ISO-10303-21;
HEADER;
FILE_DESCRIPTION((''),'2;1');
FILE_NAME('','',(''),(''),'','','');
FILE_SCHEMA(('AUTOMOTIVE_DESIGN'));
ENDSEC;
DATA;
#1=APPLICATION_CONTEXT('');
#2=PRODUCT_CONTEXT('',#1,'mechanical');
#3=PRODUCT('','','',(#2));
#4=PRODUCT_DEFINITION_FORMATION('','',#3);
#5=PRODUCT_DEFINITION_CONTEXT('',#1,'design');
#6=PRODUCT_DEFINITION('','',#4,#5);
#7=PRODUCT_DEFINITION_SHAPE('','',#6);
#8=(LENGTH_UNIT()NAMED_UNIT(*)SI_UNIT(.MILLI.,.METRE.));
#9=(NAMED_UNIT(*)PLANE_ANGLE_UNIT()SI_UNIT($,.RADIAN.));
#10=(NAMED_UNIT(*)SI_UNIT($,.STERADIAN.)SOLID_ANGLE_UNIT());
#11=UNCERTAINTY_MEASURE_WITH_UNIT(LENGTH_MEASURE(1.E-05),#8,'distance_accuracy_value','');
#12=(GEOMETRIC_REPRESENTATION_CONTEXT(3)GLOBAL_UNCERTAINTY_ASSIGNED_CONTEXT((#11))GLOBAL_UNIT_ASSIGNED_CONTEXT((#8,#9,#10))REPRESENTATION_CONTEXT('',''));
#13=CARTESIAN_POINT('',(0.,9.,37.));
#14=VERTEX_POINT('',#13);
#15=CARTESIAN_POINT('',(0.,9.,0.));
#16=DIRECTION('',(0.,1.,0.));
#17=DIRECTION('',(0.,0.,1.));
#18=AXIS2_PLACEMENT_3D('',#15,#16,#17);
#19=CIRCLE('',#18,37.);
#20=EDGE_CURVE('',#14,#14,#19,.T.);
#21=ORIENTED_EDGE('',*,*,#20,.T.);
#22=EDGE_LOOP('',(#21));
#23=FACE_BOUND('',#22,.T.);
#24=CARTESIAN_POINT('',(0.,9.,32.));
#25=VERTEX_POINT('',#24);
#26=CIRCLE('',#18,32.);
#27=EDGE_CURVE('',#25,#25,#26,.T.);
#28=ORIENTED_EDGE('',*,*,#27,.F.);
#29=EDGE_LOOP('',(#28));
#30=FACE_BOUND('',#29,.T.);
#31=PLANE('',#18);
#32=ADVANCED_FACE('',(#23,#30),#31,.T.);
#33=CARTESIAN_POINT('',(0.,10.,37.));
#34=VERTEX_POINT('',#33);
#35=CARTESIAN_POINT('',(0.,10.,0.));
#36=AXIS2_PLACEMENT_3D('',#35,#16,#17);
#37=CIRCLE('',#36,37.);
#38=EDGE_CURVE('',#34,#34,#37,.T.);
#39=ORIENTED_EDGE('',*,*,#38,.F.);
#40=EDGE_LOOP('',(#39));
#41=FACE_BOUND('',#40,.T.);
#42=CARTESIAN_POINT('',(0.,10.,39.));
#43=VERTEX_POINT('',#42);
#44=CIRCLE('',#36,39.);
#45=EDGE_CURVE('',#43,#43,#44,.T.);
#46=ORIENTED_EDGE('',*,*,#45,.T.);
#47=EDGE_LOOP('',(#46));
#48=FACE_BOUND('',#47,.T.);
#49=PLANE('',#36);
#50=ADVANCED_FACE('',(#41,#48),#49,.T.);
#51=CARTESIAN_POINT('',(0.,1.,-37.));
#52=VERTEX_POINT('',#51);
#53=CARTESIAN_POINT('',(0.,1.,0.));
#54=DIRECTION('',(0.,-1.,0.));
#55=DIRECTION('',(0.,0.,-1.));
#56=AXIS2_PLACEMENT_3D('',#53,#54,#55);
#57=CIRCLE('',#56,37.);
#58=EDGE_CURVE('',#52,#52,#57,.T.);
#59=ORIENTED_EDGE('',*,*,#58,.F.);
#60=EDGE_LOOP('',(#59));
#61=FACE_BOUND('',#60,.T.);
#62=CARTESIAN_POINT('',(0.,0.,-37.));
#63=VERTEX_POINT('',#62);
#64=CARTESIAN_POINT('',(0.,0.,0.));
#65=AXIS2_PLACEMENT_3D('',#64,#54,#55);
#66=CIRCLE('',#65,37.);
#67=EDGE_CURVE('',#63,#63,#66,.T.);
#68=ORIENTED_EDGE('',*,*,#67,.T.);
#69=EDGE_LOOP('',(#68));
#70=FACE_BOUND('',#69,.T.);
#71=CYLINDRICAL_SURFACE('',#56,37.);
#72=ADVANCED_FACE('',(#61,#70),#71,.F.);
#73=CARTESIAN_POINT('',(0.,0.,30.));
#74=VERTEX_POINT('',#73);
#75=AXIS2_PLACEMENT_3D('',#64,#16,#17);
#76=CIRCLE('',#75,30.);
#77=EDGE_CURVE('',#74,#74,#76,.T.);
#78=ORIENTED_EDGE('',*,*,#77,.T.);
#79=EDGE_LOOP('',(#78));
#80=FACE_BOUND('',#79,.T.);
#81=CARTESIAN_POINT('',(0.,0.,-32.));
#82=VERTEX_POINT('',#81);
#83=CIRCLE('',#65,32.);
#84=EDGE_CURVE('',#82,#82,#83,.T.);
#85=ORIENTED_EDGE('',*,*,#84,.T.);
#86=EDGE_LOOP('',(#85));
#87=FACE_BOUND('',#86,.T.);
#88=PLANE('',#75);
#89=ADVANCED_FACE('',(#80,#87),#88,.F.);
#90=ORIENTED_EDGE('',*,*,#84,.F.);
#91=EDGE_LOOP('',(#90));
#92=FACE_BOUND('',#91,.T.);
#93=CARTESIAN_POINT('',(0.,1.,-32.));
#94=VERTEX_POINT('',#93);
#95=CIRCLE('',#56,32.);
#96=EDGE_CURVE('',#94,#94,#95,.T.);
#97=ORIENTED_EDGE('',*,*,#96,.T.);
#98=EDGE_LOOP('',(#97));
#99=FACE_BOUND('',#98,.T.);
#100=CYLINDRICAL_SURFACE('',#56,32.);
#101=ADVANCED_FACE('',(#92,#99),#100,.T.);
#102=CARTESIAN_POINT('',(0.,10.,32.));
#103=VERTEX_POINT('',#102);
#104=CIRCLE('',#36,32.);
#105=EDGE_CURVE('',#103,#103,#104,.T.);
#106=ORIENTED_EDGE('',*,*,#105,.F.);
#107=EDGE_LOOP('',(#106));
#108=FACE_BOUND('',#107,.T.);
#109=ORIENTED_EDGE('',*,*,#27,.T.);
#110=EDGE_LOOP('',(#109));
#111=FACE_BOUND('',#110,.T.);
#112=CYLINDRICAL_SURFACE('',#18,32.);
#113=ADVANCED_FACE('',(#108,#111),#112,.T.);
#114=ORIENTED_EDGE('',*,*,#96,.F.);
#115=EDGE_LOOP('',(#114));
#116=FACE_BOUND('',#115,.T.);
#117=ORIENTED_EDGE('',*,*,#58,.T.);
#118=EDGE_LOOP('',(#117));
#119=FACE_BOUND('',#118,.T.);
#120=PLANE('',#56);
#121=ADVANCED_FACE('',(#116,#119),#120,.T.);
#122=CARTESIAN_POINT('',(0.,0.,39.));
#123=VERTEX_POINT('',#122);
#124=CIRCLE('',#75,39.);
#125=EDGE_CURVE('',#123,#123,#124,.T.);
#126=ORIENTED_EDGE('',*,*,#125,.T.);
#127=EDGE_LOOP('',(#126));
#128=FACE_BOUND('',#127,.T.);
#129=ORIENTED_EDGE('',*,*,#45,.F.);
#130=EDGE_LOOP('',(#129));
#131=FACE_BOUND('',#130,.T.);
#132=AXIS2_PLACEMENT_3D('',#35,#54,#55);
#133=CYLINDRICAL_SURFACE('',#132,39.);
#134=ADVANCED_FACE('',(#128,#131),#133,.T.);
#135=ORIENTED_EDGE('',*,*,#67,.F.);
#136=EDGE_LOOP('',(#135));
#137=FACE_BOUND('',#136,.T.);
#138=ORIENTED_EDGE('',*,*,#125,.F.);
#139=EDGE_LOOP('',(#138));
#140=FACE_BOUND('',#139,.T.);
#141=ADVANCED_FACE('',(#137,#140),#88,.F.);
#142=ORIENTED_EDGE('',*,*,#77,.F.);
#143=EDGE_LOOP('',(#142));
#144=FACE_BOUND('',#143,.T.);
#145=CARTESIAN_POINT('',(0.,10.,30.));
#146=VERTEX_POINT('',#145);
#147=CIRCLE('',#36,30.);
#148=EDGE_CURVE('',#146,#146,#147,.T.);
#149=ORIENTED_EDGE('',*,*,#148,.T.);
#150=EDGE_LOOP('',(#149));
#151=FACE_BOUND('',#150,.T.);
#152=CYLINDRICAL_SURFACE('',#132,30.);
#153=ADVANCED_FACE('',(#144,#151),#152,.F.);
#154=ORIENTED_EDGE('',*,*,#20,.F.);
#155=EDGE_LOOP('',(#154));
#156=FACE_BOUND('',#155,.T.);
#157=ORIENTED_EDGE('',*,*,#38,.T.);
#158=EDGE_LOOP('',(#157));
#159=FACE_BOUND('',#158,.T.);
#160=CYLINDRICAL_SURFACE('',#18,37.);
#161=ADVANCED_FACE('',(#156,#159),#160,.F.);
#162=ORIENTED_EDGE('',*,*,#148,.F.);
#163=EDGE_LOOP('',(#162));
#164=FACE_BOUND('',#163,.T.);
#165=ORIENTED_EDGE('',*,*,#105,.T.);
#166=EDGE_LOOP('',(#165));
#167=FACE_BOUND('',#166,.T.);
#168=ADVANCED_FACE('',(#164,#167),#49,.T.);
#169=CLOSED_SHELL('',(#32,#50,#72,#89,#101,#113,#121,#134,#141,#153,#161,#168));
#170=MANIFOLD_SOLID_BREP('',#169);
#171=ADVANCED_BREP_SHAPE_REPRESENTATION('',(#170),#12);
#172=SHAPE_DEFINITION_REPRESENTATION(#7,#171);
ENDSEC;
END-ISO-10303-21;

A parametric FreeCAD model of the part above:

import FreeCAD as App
import Part
import Sketcher
Q = App.Units.Quantity

doc = App.newDocument("Part")
body = doc.addObject("PartDesign::Body", "Body")

# Sketch on XZ plane
sketch1 = doc.addObject("Sketcher::SketchObject", "Sketch")
body.addObject(sketch1)
sketch1.AttachmentSupport = (doc.XZ_Plane, [""])
sketch1.MapMode = "FlatFace"
sketch1.addGeometry([
    Part.Circle(App.Vector(0, 0, 0), App.Vector(0, 0, 1), 39),
    Part.Circle(App.Vector(0, 0, 0), App.Vector(0, 0, 1), 30),
], False)
sketch1.addConstraint([
    Sketcher.Constraint("Coincident", 0, 3, -1, 1),
    Sketcher.Constraint("Coincident", 1, 3, -1, 1),
    Sketcher.Constraint("Diameter", 0, Q("78 mm")),
    Sketcher.Constraint("Diameter", 1, Q("60 mm")),
])
pad1 = doc.addObject("PartDesign::Pad", "Pad")
body.addObject(pad1)
pad1.Profile = sketch1
pad1.Length = 10
pad1.Reversed = True

# Sketch on XZ plane
sketch2 = doc.addObject("Sketcher::SketchObject", "Sketch001")
body.addObject(sketch2)
sketch2.AttachmentSupport = (doc.XZ_Plane, [""])
sketch2.MapMode = "FlatFace"
sketch2.AttachmentOffset = App.Placement(App.Vector(0, 0, -10), App.Rotation())
sketch2.addGeometry([
    Part.Circle(App.Vector(0, 0, 0), App.Vector(0, 0, 1), 37),
    Part.Circle(App.Vector(0, 0, 0), App.Vector(0, 0, 1), 32),
], False)
sketch2.addConstraint([
    Sketcher.Constraint("Coincident", 0, 3, -1, 1),
    Sketcher.Constraint("Coincident", 1, 3, -1, 1),
    Sketcher.Constraint("Diameter", 0, Q("74 mm")),
    Sketcher.Constraint("Diameter", 1, Q("64 mm")),
])
pocket1 = doc.addObject("PartDesign::Pocket", "Pocket")
body.addObject(pocket1)
pocket1.Profile = sketch2
pocket1.Length = 1
pocket1.Reversed = True

# Sketch on XZ plane
sketch3 = doc.addObject("Sketcher::SketchObject", "Sketch002")
body.addObject(sketch3)
sketch3.AttachmentSupport = (doc.XZ_Plane, [""])
sketch3.MapMode = "FlatFace"
sketch3.addGeometry([
    Part.Circle(App.Vector(0, 0, 0), App.Vector(0, 0, 1), 37),
    Part.Circle(App.Vector(0, 0, 0), App.Vector(0, 0, 1), 32),
], False)
sketch3.addConstraint([
    Sketcher.Constraint("Coincident", 0, 3, -1, 1),
    Sketcher.Constraint("Coincident", 1, 3, -1, 1),
    Sketcher.Constraint("Diameter", 0, Q("74 mm")),
    Sketcher.Constraint("Diameter", 1, Q("64 mm")),
])
pocket2 = doc.addObject("PartDesign::Pocket", "Pocket001")
body.addObject(pocket2)
pocket2.Profile = sketch3
pocket2.Length = 1

doc.recompute()
